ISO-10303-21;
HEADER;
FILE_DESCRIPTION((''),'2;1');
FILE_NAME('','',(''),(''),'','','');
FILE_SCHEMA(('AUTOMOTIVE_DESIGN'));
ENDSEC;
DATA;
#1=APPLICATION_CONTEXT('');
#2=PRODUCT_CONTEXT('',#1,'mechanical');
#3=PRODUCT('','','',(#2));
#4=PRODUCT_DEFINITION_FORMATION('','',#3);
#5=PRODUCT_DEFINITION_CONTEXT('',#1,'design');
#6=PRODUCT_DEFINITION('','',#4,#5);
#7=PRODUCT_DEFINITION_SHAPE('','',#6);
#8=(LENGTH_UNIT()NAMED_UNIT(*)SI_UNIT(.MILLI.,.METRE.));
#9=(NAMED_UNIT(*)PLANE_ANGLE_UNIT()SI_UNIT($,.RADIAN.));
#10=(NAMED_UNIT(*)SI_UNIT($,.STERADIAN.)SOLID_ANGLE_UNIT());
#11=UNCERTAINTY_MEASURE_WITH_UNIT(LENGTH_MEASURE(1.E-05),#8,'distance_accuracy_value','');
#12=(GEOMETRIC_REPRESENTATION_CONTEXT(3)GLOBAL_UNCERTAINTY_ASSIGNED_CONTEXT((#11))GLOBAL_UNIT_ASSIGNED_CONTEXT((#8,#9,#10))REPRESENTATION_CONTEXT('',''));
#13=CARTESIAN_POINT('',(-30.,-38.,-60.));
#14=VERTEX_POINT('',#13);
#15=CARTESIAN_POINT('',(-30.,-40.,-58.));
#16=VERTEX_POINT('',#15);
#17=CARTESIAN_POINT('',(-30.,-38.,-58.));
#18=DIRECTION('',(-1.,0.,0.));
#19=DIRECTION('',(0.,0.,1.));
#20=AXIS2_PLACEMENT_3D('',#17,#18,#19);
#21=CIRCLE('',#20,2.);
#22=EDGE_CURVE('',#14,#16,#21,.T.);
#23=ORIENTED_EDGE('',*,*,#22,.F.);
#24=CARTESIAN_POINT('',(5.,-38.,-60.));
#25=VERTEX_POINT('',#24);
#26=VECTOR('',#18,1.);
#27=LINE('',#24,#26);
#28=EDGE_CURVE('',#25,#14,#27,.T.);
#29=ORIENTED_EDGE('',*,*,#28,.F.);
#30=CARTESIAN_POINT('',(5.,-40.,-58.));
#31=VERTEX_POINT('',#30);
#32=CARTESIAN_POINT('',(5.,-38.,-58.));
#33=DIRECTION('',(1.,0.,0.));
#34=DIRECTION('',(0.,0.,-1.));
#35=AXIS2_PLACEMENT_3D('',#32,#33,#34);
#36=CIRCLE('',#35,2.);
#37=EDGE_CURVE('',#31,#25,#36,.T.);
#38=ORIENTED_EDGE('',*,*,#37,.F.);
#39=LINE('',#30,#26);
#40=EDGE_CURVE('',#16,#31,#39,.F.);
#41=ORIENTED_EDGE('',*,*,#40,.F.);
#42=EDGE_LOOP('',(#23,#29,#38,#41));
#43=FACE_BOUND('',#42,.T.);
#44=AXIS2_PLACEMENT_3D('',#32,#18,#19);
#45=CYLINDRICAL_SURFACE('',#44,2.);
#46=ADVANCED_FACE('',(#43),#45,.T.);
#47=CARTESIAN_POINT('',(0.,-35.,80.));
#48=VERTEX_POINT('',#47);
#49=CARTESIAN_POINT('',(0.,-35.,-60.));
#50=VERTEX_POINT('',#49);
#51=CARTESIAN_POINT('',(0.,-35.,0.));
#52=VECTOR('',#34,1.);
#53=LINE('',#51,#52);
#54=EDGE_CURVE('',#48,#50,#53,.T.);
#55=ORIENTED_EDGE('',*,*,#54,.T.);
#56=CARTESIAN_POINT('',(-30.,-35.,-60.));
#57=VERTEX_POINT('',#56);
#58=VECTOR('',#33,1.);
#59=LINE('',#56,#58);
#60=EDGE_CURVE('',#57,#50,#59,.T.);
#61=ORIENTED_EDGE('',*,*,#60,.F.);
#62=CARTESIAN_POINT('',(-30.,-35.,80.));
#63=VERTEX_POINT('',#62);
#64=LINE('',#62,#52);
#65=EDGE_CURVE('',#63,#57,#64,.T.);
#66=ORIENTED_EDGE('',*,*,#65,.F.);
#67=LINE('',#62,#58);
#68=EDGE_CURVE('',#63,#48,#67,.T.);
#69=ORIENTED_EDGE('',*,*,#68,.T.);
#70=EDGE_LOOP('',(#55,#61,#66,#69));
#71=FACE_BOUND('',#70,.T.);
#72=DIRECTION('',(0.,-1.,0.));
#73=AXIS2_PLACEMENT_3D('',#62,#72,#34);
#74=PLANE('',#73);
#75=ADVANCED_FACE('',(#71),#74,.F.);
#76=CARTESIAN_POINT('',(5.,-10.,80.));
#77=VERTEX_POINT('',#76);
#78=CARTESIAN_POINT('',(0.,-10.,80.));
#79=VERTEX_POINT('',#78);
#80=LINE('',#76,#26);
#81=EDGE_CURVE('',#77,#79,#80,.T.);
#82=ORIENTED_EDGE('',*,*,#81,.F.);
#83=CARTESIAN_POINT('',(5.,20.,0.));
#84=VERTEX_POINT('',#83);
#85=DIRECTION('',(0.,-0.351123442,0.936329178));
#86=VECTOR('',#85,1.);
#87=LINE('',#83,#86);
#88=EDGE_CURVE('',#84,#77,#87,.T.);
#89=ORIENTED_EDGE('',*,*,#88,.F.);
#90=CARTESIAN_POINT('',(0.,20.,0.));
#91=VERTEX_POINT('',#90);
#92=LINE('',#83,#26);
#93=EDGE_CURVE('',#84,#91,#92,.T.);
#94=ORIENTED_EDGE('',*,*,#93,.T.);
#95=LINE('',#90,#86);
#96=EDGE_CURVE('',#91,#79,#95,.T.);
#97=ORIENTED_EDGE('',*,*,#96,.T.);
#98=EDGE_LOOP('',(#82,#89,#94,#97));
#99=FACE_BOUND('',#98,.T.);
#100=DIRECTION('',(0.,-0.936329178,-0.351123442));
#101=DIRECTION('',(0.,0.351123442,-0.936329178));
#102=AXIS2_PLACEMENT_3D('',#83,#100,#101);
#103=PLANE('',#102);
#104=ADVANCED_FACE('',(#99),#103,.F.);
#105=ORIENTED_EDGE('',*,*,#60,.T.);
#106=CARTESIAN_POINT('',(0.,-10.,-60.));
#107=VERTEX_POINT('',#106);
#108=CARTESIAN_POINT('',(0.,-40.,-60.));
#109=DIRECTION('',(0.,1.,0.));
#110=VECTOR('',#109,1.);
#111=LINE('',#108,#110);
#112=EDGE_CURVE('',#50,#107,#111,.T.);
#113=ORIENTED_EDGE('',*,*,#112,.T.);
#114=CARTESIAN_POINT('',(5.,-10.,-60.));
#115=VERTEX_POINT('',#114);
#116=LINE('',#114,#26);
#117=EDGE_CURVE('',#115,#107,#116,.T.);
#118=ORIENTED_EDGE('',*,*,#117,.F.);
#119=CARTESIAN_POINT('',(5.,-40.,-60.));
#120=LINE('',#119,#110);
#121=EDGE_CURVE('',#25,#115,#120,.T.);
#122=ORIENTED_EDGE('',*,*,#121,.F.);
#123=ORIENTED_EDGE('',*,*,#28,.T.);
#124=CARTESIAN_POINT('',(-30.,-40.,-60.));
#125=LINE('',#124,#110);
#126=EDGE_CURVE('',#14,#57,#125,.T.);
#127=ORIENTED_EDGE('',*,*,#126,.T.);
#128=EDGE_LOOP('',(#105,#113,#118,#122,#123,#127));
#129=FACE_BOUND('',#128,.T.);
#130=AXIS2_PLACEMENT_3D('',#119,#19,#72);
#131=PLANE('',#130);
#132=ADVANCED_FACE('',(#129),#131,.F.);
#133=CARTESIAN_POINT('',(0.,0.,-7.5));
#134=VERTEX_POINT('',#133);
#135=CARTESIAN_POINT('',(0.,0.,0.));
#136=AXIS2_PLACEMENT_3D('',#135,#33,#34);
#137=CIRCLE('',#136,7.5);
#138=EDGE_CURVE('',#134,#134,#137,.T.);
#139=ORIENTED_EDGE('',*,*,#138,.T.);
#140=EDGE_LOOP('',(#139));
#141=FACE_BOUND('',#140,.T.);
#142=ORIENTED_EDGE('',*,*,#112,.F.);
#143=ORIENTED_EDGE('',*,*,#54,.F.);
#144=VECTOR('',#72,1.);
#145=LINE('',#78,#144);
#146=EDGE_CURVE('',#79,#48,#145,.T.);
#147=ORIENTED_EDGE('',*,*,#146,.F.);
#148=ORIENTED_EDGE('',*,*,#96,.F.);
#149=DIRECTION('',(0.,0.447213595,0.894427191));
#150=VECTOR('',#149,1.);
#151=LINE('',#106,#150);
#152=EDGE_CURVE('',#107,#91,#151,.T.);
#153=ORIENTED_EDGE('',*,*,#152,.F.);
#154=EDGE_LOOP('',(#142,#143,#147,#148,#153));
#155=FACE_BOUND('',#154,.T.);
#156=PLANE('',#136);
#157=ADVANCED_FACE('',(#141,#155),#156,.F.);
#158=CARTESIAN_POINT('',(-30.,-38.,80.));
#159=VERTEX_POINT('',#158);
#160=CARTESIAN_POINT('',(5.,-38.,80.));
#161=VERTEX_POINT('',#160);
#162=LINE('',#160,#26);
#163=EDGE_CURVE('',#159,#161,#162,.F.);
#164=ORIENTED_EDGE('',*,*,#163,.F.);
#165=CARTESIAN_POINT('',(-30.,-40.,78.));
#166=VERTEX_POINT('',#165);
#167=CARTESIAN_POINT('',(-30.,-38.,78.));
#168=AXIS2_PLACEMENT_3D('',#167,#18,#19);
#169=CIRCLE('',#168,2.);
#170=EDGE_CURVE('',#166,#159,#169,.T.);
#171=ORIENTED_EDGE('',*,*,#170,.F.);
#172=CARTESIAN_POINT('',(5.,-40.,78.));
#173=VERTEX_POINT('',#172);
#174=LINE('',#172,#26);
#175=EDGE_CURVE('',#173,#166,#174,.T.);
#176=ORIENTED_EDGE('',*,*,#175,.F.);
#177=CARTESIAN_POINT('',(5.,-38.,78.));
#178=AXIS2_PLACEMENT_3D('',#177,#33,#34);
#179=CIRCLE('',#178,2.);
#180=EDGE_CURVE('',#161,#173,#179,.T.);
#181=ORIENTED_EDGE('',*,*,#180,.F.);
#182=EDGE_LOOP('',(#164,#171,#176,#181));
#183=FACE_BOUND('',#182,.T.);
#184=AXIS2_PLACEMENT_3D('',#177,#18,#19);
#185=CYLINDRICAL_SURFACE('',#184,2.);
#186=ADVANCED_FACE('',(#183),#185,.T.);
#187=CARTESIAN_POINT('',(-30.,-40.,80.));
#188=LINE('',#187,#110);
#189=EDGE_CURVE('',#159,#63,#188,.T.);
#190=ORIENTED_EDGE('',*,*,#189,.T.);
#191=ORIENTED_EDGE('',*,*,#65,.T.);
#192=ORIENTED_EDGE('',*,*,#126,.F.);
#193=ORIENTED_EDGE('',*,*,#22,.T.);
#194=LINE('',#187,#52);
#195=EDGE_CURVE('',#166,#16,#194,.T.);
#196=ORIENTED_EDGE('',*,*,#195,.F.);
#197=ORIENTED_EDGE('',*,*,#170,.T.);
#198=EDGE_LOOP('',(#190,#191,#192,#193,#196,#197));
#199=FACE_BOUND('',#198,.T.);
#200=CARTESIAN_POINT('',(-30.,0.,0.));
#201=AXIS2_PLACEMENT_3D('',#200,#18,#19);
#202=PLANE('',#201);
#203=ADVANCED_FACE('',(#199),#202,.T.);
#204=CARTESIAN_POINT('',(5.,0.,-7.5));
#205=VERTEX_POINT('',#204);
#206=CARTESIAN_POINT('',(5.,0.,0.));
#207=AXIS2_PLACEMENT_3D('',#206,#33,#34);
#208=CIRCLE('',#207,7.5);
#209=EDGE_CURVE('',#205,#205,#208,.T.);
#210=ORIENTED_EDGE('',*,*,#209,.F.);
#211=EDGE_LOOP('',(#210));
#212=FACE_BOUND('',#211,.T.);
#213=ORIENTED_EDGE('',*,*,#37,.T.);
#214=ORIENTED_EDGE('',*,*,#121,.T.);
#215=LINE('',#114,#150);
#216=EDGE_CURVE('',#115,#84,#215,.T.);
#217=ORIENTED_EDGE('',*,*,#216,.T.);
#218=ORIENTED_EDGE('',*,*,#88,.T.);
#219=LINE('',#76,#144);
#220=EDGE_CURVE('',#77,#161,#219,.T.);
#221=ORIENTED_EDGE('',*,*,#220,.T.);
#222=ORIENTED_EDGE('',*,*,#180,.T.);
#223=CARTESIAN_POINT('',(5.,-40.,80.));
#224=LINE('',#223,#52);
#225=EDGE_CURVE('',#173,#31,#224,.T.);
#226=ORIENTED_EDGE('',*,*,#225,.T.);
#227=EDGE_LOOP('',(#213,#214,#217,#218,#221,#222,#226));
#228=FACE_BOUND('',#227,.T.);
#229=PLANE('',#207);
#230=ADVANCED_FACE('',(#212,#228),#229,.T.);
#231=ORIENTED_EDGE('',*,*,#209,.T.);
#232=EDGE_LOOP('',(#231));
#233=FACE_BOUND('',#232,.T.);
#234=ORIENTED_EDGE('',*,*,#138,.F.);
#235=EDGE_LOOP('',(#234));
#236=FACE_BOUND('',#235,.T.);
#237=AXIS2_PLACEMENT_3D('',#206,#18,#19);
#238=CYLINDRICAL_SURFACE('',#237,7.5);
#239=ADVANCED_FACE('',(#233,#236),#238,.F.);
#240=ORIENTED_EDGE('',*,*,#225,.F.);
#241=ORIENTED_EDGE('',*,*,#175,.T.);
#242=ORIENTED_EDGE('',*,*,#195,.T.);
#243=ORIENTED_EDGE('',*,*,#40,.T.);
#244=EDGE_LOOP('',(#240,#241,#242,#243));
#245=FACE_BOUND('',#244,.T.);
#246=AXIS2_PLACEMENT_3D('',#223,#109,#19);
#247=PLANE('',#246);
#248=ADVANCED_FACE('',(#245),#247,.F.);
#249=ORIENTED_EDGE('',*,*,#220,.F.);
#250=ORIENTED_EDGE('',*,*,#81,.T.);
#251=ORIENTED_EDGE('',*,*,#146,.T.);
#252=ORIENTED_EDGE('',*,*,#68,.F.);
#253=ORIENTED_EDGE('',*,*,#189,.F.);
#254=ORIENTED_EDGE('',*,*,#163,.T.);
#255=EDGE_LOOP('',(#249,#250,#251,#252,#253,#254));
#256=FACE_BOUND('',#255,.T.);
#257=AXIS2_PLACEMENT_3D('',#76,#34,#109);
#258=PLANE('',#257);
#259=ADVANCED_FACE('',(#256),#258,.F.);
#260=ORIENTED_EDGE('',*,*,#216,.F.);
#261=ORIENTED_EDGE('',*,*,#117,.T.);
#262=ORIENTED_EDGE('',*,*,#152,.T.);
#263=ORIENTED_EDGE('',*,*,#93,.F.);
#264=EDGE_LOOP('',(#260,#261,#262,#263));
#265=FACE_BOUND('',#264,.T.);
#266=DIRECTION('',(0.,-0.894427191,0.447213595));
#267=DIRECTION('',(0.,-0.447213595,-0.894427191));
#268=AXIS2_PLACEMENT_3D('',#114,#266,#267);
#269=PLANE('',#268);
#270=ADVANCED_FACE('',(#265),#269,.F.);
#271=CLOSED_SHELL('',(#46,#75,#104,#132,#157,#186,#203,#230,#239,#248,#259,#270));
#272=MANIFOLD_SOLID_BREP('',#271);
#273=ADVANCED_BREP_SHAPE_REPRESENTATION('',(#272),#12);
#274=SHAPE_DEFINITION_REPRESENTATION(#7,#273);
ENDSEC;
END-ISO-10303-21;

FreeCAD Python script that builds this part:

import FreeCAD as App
import Part
import Sketcher
from FreeCAD import Vector
Q = App.Units.Quantity


def edges_at(feature, points):
    """Names of the edges that pass closest to the given points."""
    edges = feature.Shape.Edges
    near = lambda p: min(range(len(edges)), key=lambda i: edges[i].distToShape(Part.Vertex(*p))[0])
    return sorted({f"Edge{near(p) + 1}" for p in points})


def add_polygon(sketch, points):
    """Adds a closed chain of lines whose ends are joined by coincident constraints."""
    first, n = sketch.GeometryCount, len(points)
    for a, b in zip(points, points[1:] + points[:1]):
        sketch.addGeometry(Part.LineSegment(App.Vector(*a, 0), App.Vector(*b, 0)), False)
    for i in range(n):
        sketch.addConstraint(Sketcher.Constraint("Coincident", first + i, 2, first + (i + 1) % n, 1))

doc = App.newDocument("Part")
body = doc.addObject("PartDesign::Body", "Body")

# Sketch on YZ plane
sketch1 = body.newObject("Sketcher::SketchObject", "Sketch")
sketch1.AttachmentSupport = (doc.getObject("YZ_Plane"), [""])
sketch1.MapMode = "FlatFace"
add_polygon(sketch1, [(20, 0), (-10, 80), (-40, 80), (-40, -60), (-10, -60)])  # lines 0-4
sketch1.addGeometry(Part.Circle(Vector(0, 0, 0), Vector(0, 0, 1), 7.5), False)  # 5
sketch1.addConstraint([
    Sketcher.Constraint("Horizontal", 1),
    Sketcher.Constraint("Vertical", 2),
    Sketcher.Constraint("Horizontal", 3),
    Sketcher.Constraint("Coincident", 5, 3, -1, 1),
    Sketcher.Constraint("PointOnObject", 4, 2, -1),
    Sketcher.Constraint("Vertical", 0, 2, 3, 2),
    Sketcher.Constraint("Diameter", 5, Q("15 mm")),
    Sketcher.Constraint("DistanceX", 1, 2, 1, 1, Q("30 mm")),
    Sketcher.Constraint("DistanceY", 2, 2, 2, 1, Q("140 mm")),
    Sketcher.Constraint("DistanceX", 0, 2, -1, 1, Q("10 mm")),
    Sketcher.Constraint("DistanceY", -1, 1, 0, 2, Q("80 mm")),
    Sketcher.Constraint("DistanceX", -1, 1, 4, 2, Q("20 mm")),
])
pad1 = body.newObject("PartDesign::Pad", "Pad")
pad1.Profile = sketch1
pad1.Length = 5

# Sketch on YZ plane
sketch2 = body.newObject("Sketcher::SketchObject", "Sketch001")
sketch2.AttachmentSupport = (doc.getObject("YZ_Plane"), [""])
sketch2.MapMode = "FlatFace"
sketch2.AttachmentOffset = App.Placement(Vector(0, 0, 5), App.Rotation())
add_polygon(sketch2, [(-35, 80), (-40, 80), (-40, -60), (-35, -60)])  # lines 0-3
sketch2.addConstraint([
    Sketcher.Constraint("Horizontal", 0),
    Sketcher.Constraint("Vertical", 1),
    Sketcher.Constraint("Horizontal", 2),
    Sketcher.Constraint("Vertical", 3),
    Sketcher.Constraint("DistanceX", 0, 2, 0, 1, Q("5 mm")),
    Sketcher.Constraint("DistanceY", 1, 2, 1, 1, Q("140 mm")),
    Sketcher.Constraint("DistanceX", 0, 2, -1, 1, Q("40 mm")),
    Sketcher.Constraint("DistanceY", -1, 1, 0, 2, Q("80 mm")),
])
pad2 = body.newObject("PartDesign::Pad", "Pad001")
pad2.Profile = sketch2
pad2.Length = 35
pad2.Reversed = True
doc.recompute()

fillet = body.newObject("PartDesign::Fillet", "Fillet")
fillet.Base = (pad2, edges_at(pad2, [(-12.5, -40, -60), (-12.5, -40, 80)]))
fillet.Radius = 2

doc.recompute()
